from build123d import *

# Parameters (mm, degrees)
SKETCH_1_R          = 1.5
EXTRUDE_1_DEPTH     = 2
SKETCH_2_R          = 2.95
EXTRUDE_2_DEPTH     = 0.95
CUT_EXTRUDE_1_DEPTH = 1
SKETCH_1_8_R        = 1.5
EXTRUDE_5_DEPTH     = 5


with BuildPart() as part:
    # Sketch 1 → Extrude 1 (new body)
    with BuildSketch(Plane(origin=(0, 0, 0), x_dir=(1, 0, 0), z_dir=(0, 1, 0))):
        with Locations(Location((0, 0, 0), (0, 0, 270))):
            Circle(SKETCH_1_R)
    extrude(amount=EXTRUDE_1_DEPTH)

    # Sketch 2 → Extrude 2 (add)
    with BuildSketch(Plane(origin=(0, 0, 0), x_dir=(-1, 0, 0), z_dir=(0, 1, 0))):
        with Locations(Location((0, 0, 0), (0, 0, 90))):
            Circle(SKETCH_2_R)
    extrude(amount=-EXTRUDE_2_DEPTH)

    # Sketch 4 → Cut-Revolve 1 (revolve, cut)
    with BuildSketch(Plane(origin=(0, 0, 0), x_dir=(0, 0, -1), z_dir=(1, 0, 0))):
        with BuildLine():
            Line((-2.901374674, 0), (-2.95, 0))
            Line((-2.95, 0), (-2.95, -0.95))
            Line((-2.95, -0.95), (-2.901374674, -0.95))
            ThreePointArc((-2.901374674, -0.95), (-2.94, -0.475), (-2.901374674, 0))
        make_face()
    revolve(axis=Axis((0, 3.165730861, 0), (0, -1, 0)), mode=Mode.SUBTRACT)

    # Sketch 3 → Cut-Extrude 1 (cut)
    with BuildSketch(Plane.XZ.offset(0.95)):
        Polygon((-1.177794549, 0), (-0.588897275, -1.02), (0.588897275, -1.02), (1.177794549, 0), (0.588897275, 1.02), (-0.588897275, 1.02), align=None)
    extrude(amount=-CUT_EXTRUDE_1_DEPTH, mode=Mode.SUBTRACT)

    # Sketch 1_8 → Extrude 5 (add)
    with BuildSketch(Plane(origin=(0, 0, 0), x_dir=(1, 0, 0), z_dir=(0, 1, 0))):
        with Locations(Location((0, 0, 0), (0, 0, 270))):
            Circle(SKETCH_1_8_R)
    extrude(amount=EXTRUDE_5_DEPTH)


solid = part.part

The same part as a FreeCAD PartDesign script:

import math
import FreeCAD as App
import Part
import Sketcher
from FreeCAD import Vector
Q = App.Units.Quantity

doc = App.newDocument("Part")
params = doc.addObject("Spreadsheet::Sheet", "Params")
for row, (alias, value) in enumerate([
    ("sketch1_diameter", "3 mm"),
    ("pad1_length", "2 mm"),
    ("sketch2_diameter", "5.9 mm"),
    ("pad2_length", "0.95 mm"),
    ("sketch3_radius", "2.94 mm"),
    ("sketch3_width", "0.95 mm"),
    ("groove_angle", "360 deg"),
    ("pocket1_length", "1 mm"),
    ("sketch5_diameter", "3 mm"),
    ("pad3_length", "5 mm"),
], start=1):
    params.set(f"A{row}", alias)
    params.set(f"B{row}", "=" + value)
    params.setAlias(f"B{row}", alias)

body = doc.addObject("PartDesign::Body", "Body")

sketch1 = body.newObject("Sketcher::SketchObject", "Sketch")
sketch1.AttachmentSupport = (doc.getObject("XZ_Plane"), [""])
sketch1.MapMode = "FlatFace"
sketch1.addGeometry(Part.Circle(Vector(0, 0, 0), Vector(0, 0, 1), 1.5), False)
sketch1.addConstraint([
    Sketcher.Constraint("Coincident", 0, 3, -1, 1),
    Sketcher.Constraint("Diameter", 0, Q("3 mm")),
])
sketch1.setExpression("Constraints[1]", "Params.sketch1_diameter")
pad1 = body.newObject("PartDesign::Pad", "Pad")
pad1.Profile = sketch1
pad1.setExpression("Length", "Params.pad1_length")
pad1.Reversed = True

sketch2 = body.newObject("Sketcher::SketchObject", "Sketch001")
sketch2.AttachmentSupport = (doc.getObject("XZ_Plane"), [""])
sketch2.MapMode = "FlatFace"
sketch2.addGeometry(Part.Circle(Vector(0, 0, 0), Vector(0, 0, 1), 3), False)
sketch2.addConstraint([
    Sketcher.Constraint("Coincident", 0, 3, -1, 1),
    Sketcher.Constraint("Diameter", 0, Q("5.9 mm")),
])
sketch2.setExpression("Constraints[1]", "Params.sketch2_diameter")
pad2 = body.newObject("PartDesign::Pad", "Pad001")
pad2.Profile = sketch2
pad2.setExpression("Length", "Params.pad2_length")

sketch3 = body.newObject("Sketcher::SketchObject", "Sketch002")
sketch3.AttachmentSupport = (doc.getObject("YZ_Plane"), [""])
sketch3.MapMode = "FlatFace"
sketch3.addGeometry([
    Part.LineSegment(Vector(0, 2.901, 0), Vector(0, 2.95, 0)),
    Part.LineSegment(Vector(0, 2.95, 0), Vector(-0.95, 2.95, 0)),
    Part.LineSegment(Vector(-0.95, 2.95, 0), Vector(-0.95, 2.901, 0)),
    Part.ArcOfCircle(Part.Circle(Vector(-0.475, 0, 0), Vector(0, 0, 1), 2.94), math.radians(80.7), math.radians(99.3)),
], False)
sketch3.addConstraint([
    Sketcher.Constraint("Coincident", 0, 2, 1, 1),
    Sketcher.Constraint("Coincident", 1, 2, 2, 1),
    Sketcher.Constraint("Coincident", 2, 2, 3, 2),
    Sketcher.Constraint("Coincident", 3, 1, 0, 1),
    Sketcher.Constraint("Vertical", 0),
    Sketcher.Constraint("Horizontal", 1),
    Sketcher.Constraint("Vertical", 2),
    Sketcher.Constraint("PointOnObject", 3, 3, -1),
    Sketcher.Constraint("PointOnObject", 0, 2, -2),
    Sketcher.Constraint("Horizontal", 2, 2, 3, 1),
    Sketcher.Constraint("Radius", 3, Q("2.94 mm")),
    Sketcher.Constraint("DistanceX", 1, 2, 1, 1, Q("0.95 mm")),
    Sketcher.Constraint("DistanceY", -1, 1, 0, 2, Q("2.95 mm")),
])
sketch3.setExpression("Constraints[10]", "Params.sketch3_radius")
sketch3.setExpression("Constraints[11]", "Params.sketch3_width")
groove = body.newObject("PartDesign::Groove", "Groove")
groove.Profile = sketch3
groove.ReferenceAxis = (sketch3, ["H_Axis"])
groove.setExpression("Angle", "Params.groove_angle")

sketch4 = body.newObject("Sketcher::SketchObject", "Sketch003")
sketch4.AttachmentSupport = (doc.getObject("XZ_Plane"), [""])
sketch4.MapMode = "FlatFace"
sketch4.AttachmentOffset = App.Placement(Vector(0, 0, 0.95), App.Rotation())
sketch4.addGeometry([
    Part.LineSegment(Vector(-1.2, 0, 0), Vector(-0.6, -1, 0)),
    Part.LineSegment(Vector(-0.6, -1, 0), Vector(0.6, -1, 0)),
    Part.LineSegment(Vector(0.6, -1, 0), Vector(1.2, 0, 0)),
    Part.LineSegment(Vector(1.2, 0, 0), Vector(0.6, 1, 0)),
    Part.LineSegment(Vector(0.6, 1, 0), Vector(-0.6, 1, 0)),
    Part.LineSegment(Vector(-0.6, 1, 0), Vector(-1.2, 0, 0)),
], False)
sketch4.addConstraint([
    Sketcher.Constraint("Coincident", 0, 2, 1, 1),
    Sketcher.Constraint("Coincident", 1, 2, 2, 1),
    Sketcher.Constraint("Coincident", 2, 2, 3, 1),
    Sketcher.Constraint("Coincident", 3, 2, 4, 1),
    Sketcher.Constraint("Coincident", 4, 2, 5, 1),
    Sketcher.Constraint("Coincident", 5, 2, 0, 1),
    Sketcher.Constraint("Horizontal", 1),
    Sketcher.Constraint("Horizontal", 4),
    Sketcher.Constraint("Symmetric", 0, 2, 3, 2, -1, 1),
    Sketcher.Constraint("Symmetric", 2, 2, 5, 2, -1, 1),
    Sketcher.Constraint("PointOnObject", 2, 2, -1),
    Sketcher.Constraint("Parallel", 2, 5),
    Sketcher.Constraint("Vertical", 1, 2, 3, 2),
    Sketcher.Constraint("Angle", 0, Q("-60 deg")),
    Sketcher.Constraint("DistanceY", 0, 2, -1, 1, Q("1.02 mm")),
    Sketcher.Constraint("DistanceX", 1, 1, 1, 2, Q("1.177795 mm")),
])
pocket1 = body.newObject("PartDesign::Pocket", "Pocket")
pocket1.Profile = sketch4
pocket1.setExpression("Length", "Params.pocket1_length")

sketch5 = body.newObject("Sketcher::SketchObject", "Sketch004")
sketch5.AttachmentSupport = (doc.getObject("XZ_Plane"), [""])
sketch5.MapMode = "FlatFace"
sketch5.addGeometry(Part.Circle(Vector(0, 0, 0), Vector(0, 0, 1), 1.5), False)
sketch5.addConstraint([
    Sketcher.Constraint("Coincident", 0, 3, -1, 1),
    Sketcher.Constraint("Diameter", 0, Q("3 mm")),
])
sketch5.setExpression("Constraints[1]", "Params.sketch5_diameter")
pad3 = body.newObject("PartDesign::Pad", "Pad002")
pad3.Profile = sketch5
pad3.setExpression("Length", "Params.pad3_length")
pad3.Reversed = True

doc.recompute()
